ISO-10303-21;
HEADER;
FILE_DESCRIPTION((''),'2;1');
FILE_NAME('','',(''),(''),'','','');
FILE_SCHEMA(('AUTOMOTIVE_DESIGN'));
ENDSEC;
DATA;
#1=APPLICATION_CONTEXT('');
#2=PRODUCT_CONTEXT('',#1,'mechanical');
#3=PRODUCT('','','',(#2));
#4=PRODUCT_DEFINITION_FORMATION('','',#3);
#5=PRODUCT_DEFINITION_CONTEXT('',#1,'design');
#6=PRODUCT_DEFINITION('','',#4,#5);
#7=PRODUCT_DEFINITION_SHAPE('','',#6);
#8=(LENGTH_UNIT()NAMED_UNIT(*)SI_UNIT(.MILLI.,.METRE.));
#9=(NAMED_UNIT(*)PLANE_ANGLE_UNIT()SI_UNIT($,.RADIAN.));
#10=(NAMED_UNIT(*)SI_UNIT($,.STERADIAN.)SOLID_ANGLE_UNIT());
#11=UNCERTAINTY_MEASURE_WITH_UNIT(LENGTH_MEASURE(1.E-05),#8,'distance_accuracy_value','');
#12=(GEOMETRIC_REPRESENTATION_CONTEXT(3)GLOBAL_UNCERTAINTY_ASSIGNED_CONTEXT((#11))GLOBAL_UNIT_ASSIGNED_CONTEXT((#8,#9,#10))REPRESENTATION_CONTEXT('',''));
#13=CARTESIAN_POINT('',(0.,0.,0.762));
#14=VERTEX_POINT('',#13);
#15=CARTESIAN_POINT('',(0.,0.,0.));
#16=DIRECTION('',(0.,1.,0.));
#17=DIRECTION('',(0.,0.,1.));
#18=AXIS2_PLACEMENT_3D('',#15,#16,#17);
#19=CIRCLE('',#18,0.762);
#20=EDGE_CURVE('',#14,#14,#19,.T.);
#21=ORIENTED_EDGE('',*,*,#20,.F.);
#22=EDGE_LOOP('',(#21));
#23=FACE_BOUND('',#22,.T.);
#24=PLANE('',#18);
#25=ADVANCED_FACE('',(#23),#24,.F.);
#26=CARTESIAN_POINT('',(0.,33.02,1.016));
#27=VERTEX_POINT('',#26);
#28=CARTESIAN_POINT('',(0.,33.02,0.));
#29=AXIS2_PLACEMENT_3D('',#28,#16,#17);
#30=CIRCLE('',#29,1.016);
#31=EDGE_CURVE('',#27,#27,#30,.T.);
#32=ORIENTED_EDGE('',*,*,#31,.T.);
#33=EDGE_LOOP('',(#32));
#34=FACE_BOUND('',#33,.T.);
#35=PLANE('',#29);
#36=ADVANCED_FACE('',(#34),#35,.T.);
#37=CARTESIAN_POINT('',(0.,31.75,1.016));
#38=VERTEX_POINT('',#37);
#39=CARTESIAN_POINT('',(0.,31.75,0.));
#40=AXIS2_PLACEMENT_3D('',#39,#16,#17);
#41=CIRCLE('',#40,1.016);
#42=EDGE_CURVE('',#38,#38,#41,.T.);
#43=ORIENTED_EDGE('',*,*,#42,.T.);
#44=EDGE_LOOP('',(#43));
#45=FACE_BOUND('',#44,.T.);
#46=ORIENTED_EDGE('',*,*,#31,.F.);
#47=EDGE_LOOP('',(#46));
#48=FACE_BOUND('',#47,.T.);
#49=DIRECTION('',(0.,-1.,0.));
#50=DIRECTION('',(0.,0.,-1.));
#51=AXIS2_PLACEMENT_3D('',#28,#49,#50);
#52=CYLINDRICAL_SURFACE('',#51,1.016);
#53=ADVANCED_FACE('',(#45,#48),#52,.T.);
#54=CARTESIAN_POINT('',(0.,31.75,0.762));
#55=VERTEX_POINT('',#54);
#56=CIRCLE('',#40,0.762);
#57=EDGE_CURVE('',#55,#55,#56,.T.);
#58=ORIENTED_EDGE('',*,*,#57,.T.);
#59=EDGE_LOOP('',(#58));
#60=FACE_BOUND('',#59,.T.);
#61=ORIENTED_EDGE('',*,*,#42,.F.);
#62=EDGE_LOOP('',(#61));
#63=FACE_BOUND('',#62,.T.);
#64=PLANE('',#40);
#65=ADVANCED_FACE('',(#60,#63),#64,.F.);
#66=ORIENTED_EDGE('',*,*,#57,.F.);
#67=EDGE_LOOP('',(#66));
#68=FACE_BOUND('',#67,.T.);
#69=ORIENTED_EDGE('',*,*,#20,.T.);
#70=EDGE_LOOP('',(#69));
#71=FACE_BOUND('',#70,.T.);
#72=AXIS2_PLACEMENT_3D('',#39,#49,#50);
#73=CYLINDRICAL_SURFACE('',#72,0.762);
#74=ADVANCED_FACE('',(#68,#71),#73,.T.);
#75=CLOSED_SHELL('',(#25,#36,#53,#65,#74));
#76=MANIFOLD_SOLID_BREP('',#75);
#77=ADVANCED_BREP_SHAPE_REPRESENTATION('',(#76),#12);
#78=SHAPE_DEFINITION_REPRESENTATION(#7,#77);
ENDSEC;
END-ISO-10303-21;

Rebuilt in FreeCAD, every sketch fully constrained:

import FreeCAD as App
import Part
import Sketcher
Q = App.Units.Quantity

doc = App.newDocument("Part")
params = doc.addObject("Spreadsheet::Sheet", "Params")
for row, (alias, value) in enumerate([
    ("sketch1_diameter", "0.06 in"),
    ("pad1_length", "1.25 in"),
    ("sketch2_diameter", "0.08 in"),
    ("pad2_length", "0.05 in"),
], start=1):
    params.set(f"A{row}", alias)
    params.set(f"B{row}", "=" + value)
    params.setAlias(f"B{row}", alias)

body = doc.addObject("PartDesign::Body", "Body")

# Sketch on XZ plane
sketch1 = body.newObject("Sketcher::SketchObject", "Sketch")
sketch1.AttachmentSupport = (doc.getObject("XZ_Plane"), [""])
sketch1.MapMode = "FlatFace"
sketch1.addGeometry(Part.Circle(App.Vector(0, 0, 0), App.Vector(0, 0, 1), 0.8), False)
sketch1.addConstraint([
    Sketcher.Constraint("Coincident", 0, 3, -1, 1),
    Sketcher.Constraint("Diameter", 0, Q("0.06 in")),
])
sketch1.setExpression("Constraints[1]", "Params.sketch1_diameter")
pad1 = body.newObject("PartDesign::Pad", "Pad")
pad1.Profile = sketch1
pad1.setExpression("Length", "Params.pad1_length")
pad1.Reversed = True

# Sketch on XZ plane
sketch2 = body.newObject("Sketcher::SketchObject", "Sketch001")
sketch2.AttachmentSupport = (doc.getObject("XZ_Plane"), [""])
sketch2.MapMode = "FlatFace"
sketch2.AttachmentOffset = App.Placement(App.Vector(0, 0, -1.25 * 25.4), App.Rotation())
sketch2.addGeometry(Part.Circle(App.Vector(0, 0, 0), App.Vector(0, 0, 1), 1), False)
sketch2.addConstraint([
    Sketcher.Constraint("Coincident", 0, 3, -1, 1),
    Sketcher.Constraint("Diameter", 0, Q("0.08 in")),
])
sketch2.setExpression("Constraints[1]", "Params.sketch2_diameter")
pad2 = body.newObject("PartDesign::Pad", "Pad001")
pad2.Profile = sketch2
pad2.setExpression("Length", "Params.pad2_length")
pad2.Reversed = True

doc.recompute()
